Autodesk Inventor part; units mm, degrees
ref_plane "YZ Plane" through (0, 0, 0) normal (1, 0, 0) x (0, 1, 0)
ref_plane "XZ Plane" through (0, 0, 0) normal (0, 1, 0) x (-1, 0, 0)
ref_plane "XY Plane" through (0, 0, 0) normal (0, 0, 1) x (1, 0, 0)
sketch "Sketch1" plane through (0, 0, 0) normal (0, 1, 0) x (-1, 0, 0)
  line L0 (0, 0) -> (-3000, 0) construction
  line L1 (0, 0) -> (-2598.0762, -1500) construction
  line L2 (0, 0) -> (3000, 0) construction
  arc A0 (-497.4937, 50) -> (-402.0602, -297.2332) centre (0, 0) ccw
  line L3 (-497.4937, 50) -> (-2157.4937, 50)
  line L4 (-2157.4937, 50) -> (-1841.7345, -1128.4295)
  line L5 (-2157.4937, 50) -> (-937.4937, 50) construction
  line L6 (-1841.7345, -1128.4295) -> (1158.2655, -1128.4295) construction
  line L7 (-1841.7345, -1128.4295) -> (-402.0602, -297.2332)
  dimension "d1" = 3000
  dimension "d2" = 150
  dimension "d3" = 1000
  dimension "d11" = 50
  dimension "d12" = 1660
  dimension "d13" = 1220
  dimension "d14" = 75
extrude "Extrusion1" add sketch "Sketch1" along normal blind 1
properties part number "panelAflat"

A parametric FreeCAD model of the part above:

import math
import FreeCAD as App
import Part
import Sketcher
Q = App.Units.Quantity

doc = App.newDocument("Part")
body = doc.addObject("PartDesign::Body", "Body")

# Sketch on XZ plane
sketch1 = body.newObject("Sketcher::SketchObject", "Sketch")
sketch1.AttachmentSupport = (doc.getObject("XZ_Plane"), [""])
sketch1.MapMode = "FlatFace"
sketch1.addGeometry(Part.ArcOfCircle(Part.Circle(App.Vector(0, 0, 0), App.Vector(0, 0, 1), 499.999982), math.radians(-36.474604), math.radians(5.739171)), False)
sketch1.addGeometry(Part.LineSegment(App.Vector(497.4937, 50, 0), App.Vector(2157.4937, 50, 0)), False)
sketch1.addGeometry(Part.LineSegment(App.Vector(2157.4937, 50, 0), App.Vector(1841.7345, -1128.4295, 0)), False)
sketch1.addGeometry(Part.LineSegment(App.Vector(1841.7345, -1128.4295, 0), App.Vector(402.0602, -297.2332, 0)), False)
sketch1.addConstraint(Sketcher.Constraint("Coincident", 0, 2, 1, 1))
sketch1.addConstraint(Sketcher.Constraint("Coincident", 1, 2, 2, 1))
sketch1.addConstraint(Sketcher.Constraint("Coincident", 2, 2, 3, 1))
sketch1.addConstraint(Sketcher.Constraint("Coincident", 3, 2, 0, 1))
sketch1.addConstraint(Sketcher.Constraint("Horizontal", 1))
sketch1.addConstraint(Sketcher.Constraint("Coincident", 0, 3, -1, 1))
sketch1.addConstraint(Sketcher.Constraint("Radius", 0, 500.0))
sketch1.addConstraint(Sketcher.Constraint("DistanceX", 1, 1, 1, 2, 1660.0))
sketch1.addConstraint(Sketcher.Constraint("Angle", 3, Q("150 deg")))
sketch1.addConstraint(Sketcher.Constraint("Distance", 2, 1220.0))
sketch1.addConstraint(Sketcher.Constraint("DistanceY", -1, 1, 1, 2, 50.0))
sketch1.addConstraint(Sketcher.Constraint("Angle", 2, Q("-105 deg")))
pad1 = body.newObject("PartDesign::Pad", "Pad")
pad1.Profile = sketch1
pad1.Length = 1
pad1.Reversed = True

doc.recompute()
